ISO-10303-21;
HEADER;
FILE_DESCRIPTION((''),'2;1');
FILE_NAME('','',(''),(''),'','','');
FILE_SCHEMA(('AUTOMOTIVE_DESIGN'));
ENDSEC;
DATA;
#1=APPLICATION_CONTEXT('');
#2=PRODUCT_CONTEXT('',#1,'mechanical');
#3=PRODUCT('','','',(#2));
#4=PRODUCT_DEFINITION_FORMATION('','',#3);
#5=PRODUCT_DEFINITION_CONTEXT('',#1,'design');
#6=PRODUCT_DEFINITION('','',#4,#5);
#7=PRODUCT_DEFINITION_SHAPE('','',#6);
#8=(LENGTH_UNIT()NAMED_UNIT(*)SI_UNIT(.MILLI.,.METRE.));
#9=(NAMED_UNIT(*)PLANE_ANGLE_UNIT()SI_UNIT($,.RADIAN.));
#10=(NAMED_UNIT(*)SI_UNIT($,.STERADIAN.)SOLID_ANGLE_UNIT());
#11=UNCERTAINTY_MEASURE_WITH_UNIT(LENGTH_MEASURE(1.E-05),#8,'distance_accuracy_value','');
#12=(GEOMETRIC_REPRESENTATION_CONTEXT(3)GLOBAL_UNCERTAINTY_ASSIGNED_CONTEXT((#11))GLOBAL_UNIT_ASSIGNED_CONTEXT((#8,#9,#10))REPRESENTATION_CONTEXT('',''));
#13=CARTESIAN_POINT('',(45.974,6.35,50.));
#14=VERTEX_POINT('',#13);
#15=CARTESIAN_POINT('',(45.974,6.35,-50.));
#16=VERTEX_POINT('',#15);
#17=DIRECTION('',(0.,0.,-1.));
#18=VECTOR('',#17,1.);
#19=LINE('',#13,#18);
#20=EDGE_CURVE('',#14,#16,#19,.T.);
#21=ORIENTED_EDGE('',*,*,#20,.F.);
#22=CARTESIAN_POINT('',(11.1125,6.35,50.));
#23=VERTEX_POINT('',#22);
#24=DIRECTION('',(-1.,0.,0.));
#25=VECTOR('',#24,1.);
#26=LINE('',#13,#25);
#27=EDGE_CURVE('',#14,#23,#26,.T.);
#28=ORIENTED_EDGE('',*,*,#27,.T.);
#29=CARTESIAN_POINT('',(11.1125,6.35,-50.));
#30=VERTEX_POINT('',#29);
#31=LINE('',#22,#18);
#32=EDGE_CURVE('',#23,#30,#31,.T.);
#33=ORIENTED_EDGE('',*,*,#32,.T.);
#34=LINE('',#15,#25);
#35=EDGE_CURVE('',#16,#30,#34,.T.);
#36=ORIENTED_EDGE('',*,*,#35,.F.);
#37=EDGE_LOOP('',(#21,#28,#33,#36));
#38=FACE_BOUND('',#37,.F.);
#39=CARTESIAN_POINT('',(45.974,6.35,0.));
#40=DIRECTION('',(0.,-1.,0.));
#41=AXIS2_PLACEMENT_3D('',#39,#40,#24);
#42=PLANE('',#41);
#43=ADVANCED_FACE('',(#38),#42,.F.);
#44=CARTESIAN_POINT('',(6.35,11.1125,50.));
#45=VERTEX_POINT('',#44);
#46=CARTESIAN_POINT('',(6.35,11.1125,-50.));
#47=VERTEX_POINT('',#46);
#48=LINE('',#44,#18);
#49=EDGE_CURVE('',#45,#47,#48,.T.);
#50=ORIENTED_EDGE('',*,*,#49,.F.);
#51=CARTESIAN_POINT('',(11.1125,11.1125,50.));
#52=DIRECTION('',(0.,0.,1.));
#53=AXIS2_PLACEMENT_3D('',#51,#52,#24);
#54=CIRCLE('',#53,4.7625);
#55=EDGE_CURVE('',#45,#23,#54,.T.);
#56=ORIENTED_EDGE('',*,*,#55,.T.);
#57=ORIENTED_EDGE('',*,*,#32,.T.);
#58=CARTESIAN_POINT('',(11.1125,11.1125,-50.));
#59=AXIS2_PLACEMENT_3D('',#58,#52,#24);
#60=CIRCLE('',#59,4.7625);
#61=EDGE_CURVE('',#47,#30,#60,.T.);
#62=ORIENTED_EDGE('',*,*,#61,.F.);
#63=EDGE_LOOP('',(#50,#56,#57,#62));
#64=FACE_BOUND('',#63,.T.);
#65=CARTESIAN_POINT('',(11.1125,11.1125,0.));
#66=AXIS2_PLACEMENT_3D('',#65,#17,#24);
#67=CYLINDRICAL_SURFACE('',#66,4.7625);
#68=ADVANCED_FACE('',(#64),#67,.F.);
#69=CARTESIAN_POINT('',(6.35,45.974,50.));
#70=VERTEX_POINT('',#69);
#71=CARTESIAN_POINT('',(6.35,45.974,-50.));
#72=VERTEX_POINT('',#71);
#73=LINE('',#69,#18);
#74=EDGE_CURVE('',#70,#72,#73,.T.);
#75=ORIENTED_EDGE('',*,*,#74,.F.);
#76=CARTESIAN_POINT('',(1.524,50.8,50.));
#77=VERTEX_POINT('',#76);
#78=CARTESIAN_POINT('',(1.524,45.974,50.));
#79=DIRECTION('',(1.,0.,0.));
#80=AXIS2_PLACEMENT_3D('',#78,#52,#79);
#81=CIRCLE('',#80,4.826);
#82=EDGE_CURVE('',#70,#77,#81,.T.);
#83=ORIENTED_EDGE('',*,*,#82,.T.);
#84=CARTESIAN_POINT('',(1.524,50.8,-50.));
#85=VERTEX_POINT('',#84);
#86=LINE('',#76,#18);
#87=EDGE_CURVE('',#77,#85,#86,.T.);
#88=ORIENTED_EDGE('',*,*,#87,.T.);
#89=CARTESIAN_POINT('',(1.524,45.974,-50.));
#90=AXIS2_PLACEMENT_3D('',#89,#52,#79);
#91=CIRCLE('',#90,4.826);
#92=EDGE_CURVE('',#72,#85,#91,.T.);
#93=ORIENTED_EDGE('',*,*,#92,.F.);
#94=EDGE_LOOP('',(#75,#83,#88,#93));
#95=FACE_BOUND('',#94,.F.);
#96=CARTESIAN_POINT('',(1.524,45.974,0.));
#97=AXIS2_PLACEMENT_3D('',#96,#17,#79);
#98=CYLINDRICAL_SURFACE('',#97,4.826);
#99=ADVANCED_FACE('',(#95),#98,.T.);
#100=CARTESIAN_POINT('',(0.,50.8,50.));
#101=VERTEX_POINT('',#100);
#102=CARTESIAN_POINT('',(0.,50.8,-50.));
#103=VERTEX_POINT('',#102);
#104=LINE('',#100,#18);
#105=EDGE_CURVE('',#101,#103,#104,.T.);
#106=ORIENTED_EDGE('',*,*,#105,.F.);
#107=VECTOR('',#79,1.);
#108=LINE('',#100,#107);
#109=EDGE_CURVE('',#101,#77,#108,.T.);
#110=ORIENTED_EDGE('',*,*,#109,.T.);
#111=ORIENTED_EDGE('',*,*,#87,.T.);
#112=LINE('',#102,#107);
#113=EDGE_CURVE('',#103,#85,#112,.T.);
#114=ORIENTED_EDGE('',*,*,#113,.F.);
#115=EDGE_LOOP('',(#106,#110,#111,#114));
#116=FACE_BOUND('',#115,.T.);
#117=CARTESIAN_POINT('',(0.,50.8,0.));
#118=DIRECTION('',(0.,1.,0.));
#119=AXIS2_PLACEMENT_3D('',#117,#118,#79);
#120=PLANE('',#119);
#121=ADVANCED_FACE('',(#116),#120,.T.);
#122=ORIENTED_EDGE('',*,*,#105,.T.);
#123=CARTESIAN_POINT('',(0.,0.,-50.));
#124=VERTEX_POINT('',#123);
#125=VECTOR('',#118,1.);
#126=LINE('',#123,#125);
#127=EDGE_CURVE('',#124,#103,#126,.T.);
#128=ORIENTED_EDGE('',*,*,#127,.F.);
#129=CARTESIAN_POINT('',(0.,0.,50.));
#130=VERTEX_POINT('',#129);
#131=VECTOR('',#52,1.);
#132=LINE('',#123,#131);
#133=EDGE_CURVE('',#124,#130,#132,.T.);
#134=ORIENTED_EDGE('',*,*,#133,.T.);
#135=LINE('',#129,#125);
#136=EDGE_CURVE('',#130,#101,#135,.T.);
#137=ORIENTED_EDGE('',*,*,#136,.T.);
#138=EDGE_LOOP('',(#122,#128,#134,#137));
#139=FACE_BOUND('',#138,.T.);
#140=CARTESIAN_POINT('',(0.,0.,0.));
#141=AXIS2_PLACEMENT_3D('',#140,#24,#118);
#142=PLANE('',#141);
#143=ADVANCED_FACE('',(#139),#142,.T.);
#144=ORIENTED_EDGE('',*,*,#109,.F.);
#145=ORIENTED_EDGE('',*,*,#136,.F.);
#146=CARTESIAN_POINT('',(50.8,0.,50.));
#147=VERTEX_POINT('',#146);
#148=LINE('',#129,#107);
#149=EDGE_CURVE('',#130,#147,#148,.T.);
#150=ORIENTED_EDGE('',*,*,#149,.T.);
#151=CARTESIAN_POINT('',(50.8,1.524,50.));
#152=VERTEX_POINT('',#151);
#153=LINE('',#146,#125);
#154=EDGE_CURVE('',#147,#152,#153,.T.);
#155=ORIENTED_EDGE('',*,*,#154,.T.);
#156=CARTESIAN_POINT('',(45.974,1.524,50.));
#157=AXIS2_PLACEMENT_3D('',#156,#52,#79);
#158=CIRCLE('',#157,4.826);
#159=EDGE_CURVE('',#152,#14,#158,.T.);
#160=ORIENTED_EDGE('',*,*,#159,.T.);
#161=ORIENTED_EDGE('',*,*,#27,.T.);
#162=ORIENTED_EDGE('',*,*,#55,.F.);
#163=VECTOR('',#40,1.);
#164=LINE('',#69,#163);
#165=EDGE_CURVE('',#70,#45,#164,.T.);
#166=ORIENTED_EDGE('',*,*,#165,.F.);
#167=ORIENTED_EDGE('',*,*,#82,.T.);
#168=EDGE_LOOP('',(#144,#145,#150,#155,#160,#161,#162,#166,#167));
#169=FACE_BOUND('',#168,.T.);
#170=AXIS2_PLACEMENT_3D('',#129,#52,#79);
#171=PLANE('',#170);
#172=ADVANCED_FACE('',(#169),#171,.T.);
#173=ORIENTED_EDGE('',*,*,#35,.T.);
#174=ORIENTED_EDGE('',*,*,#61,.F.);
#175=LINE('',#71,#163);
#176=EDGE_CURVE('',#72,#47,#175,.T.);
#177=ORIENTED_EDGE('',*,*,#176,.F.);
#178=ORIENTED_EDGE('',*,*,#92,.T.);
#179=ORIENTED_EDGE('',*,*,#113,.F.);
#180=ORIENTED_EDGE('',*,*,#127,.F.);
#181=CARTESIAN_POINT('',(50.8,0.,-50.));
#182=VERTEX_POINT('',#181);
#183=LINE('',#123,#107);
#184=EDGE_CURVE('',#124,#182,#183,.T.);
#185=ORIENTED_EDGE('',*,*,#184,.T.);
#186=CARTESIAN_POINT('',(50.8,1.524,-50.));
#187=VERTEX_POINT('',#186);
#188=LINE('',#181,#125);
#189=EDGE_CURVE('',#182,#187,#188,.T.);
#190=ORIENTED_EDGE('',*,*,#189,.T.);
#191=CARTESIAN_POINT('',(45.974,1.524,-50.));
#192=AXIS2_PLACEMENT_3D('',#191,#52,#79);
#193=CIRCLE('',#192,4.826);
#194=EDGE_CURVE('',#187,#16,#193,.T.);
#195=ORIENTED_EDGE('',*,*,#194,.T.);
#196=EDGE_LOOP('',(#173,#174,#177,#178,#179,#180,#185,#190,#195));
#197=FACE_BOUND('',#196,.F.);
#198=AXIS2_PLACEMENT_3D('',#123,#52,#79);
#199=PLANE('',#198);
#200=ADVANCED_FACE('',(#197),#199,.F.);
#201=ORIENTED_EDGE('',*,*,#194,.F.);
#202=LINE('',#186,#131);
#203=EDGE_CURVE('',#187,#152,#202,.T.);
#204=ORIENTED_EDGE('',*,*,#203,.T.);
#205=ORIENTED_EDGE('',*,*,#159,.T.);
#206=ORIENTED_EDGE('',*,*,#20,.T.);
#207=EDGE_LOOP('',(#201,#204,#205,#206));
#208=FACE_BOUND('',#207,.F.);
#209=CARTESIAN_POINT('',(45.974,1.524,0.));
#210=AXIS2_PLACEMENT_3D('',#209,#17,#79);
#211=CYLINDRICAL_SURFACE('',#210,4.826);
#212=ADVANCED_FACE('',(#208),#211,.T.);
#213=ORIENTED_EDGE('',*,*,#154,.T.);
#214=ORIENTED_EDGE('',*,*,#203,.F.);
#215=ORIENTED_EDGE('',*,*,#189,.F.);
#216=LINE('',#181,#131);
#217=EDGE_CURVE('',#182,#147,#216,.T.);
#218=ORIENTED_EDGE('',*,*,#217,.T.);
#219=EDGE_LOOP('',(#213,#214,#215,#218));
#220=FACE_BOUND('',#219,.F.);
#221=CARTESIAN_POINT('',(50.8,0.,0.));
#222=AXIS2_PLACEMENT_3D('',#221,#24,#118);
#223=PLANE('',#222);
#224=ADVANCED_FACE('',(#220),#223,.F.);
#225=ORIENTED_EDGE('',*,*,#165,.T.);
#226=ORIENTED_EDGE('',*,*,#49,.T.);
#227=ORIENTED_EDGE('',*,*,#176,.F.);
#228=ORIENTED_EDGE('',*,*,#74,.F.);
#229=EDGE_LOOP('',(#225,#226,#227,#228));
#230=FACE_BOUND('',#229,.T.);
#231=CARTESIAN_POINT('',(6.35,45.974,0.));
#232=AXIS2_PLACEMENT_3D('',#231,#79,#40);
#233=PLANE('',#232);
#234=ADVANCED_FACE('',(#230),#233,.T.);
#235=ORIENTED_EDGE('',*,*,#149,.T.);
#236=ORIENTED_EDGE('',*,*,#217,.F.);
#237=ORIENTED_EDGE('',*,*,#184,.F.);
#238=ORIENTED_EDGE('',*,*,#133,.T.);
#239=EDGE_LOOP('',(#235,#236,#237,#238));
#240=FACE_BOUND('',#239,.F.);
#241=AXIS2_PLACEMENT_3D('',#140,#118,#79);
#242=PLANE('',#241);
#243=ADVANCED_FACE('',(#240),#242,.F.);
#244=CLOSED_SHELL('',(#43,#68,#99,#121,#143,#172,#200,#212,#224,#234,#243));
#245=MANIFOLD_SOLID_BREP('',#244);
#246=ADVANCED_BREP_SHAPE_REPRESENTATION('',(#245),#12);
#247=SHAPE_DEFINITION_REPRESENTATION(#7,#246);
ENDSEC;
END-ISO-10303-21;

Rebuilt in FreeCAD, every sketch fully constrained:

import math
import FreeCAD as App
import Part
import Sketcher
from FreeCAD import Vector
Q = App.Units.Quantity

doc = App.newDocument("Part")
params = doc.addObject("Spreadsheet::Sheet", "Params")
for row, (alias, value) in enumerate([
    ("sketch1_width", "2 in"),
    ("sketch1_radius", "0.19 in"),
    ("sketch1_radius2", "0.1875 in"),
    ("pad1_length", "3.9370079 in"),
], start=1):
    params.set(f"A{row}", alias)
    params.set(f"B{row}", "=" + value)
    params.setAlias(f"B{row}", alias)

body = doc.addObject("PartDesign::Body", "Body")

# Sketch on XY plane
sketch1 = doc.addObject("Sketcher::SketchObject", "Sketch")
body.addObject(sketch1)
sketch1.AttachmentSupport = (doc.XY_Plane, [""])
sketch1.MapMode = "FlatFace"
sketch1.addGeometry(Part.LineSegment(Vector(0, 50.8, 0), Vector(0, 0, 0)), False)
sketch1.addGeometry(Part.LineSegment(Vector(0, 0, 0), Vector(50.8, 0, 0)), False)
sketch1.addGeometry(Part.LineSegment(Vector(50.8, 0, 0), Vector(50.8, 1.524, 0)), False)
sketch1.addGeometry(Part.ArcOfCircle(Part.Circle(Vector(45.974, 1.524, 0), Vector(0, 0, 1), 4.826), math.radians(0), math.radians(90)), False)
sketch1.addGeometry(Part.LineSegment(Vector(45.974, 6.35, 0), Vector(11.1125, 6.35, 0)), False)
sketch1.addGeometry(Part.ArcOfCircle(Part.Circle(Vector(11.1125, 11.1125, 0), Vector(0, 0, 1), 4.7625), math.radians(180), math.radians(270)), False)
sketch1.addGeometry(Part.LineSegment(Vector(6.35, 11.1125, 0), Vector(6.35, 45.974, 0)), False)
sketch1.addGeometry(Part.ArcOfCircle(Part.Circle(Vector(1.524, 45.974, 0), Vector(0, 0, 1), 4.826), math.radians(0), math.radians(90)), False)
sketch1.addGeometry(Part.LineSegment(Vector(1.524, 50.8, 0), Vector(0, 50.8, 0)), False)
sketch1.addConstraint(Sketcher.Constraint("Coincident", 0, 2, 1, 1))
sketch1.addConstraint(Sketcher.Constraint("Coincident", 1, 2, 2, 1))
sketch1.addConstraint(Sketcher.Constraint("Tangent", 2, 2, 3, 1))
sketch1.addConstraint(Sketcher.Constraint("Tangent", 3, 2, 4, 1))
sketch1.addConstraint(Sketcher.Constraint("Tangent", 4, 2, 5, 2))
sketch1.addConstraint(Sketcher.Constraint("Tangent", 5, 1, 6, 1))
sketch1.addConstraint(Sketcher.Constraint("Tangent", 6, 2, 7, 1))
sketch1.addConstraint(Sketcher.Constraint("Tangent", 7, 2, 8, 1))
sketch1.addConstraint(Sketcher.Constraint("Coincident", 8, 2, 0, 1))
sketch1.addConstraint(Sketcher.Constraint("Vertical", 0))
sketch1.addConstraint(Sketcher.Constraint("Horizontal", 1))
sketch1.addConstraint(Sketcher.Constraint("Vertical", 2))
sketch1.addConstraint(Sketcher.Constraint("Horizontal", 4))
sketch1.addConstraint(Sketcher.Constraint("Vertical", 6))
sketch1.addConstraint(Sketcher.Constraint("Horizontal", 8))
sketch1.addConstraint(Sketcher.Constraint("Coincident", 0, 2, -1, 1))
sketch1.addConstraint(Sketcher.Constraint("Equal", 3, 7))
sketch1.addConstraint(Sketcher.Constraint("Equal", 1, 0))
sketch1.addConstraint(Sketcher.Constraint("Equal", 8, 2))
sketch1.addConstraint(Sketcher.Constraint("DistanceX", 1, 1, 1, 2, Q("2 in")))
sketch1.addConstraint(Sketcher.Constraint("Radius", 3, Q("0.19 in")))
sketch1.addConstraint(Sketcher.Constraint("Radius", 5, Q("0.1875 in")))
sketch1.addConstraint(Sketcher.Constraint("DistanceY", -1, 1, 3, 2, Q("0.25 in")))
sketch1.setExpression("Constraints[19]", "Params.sketch1_width")
sketch1.setExpression("Constraints[20]", "Params.sketch1_radius")
sketch1.setExpression("Constraints[21]", "Params.sketch1_radius2")
pad1 = doc.addObject("PartDesign::Pad", "Pad")
body.addObject(pad1)
pad1.Profile = sketch1
pad1.setExpression("Length", "Params.pad1_length")
pad1.Midplane = True

doc.recompute()
